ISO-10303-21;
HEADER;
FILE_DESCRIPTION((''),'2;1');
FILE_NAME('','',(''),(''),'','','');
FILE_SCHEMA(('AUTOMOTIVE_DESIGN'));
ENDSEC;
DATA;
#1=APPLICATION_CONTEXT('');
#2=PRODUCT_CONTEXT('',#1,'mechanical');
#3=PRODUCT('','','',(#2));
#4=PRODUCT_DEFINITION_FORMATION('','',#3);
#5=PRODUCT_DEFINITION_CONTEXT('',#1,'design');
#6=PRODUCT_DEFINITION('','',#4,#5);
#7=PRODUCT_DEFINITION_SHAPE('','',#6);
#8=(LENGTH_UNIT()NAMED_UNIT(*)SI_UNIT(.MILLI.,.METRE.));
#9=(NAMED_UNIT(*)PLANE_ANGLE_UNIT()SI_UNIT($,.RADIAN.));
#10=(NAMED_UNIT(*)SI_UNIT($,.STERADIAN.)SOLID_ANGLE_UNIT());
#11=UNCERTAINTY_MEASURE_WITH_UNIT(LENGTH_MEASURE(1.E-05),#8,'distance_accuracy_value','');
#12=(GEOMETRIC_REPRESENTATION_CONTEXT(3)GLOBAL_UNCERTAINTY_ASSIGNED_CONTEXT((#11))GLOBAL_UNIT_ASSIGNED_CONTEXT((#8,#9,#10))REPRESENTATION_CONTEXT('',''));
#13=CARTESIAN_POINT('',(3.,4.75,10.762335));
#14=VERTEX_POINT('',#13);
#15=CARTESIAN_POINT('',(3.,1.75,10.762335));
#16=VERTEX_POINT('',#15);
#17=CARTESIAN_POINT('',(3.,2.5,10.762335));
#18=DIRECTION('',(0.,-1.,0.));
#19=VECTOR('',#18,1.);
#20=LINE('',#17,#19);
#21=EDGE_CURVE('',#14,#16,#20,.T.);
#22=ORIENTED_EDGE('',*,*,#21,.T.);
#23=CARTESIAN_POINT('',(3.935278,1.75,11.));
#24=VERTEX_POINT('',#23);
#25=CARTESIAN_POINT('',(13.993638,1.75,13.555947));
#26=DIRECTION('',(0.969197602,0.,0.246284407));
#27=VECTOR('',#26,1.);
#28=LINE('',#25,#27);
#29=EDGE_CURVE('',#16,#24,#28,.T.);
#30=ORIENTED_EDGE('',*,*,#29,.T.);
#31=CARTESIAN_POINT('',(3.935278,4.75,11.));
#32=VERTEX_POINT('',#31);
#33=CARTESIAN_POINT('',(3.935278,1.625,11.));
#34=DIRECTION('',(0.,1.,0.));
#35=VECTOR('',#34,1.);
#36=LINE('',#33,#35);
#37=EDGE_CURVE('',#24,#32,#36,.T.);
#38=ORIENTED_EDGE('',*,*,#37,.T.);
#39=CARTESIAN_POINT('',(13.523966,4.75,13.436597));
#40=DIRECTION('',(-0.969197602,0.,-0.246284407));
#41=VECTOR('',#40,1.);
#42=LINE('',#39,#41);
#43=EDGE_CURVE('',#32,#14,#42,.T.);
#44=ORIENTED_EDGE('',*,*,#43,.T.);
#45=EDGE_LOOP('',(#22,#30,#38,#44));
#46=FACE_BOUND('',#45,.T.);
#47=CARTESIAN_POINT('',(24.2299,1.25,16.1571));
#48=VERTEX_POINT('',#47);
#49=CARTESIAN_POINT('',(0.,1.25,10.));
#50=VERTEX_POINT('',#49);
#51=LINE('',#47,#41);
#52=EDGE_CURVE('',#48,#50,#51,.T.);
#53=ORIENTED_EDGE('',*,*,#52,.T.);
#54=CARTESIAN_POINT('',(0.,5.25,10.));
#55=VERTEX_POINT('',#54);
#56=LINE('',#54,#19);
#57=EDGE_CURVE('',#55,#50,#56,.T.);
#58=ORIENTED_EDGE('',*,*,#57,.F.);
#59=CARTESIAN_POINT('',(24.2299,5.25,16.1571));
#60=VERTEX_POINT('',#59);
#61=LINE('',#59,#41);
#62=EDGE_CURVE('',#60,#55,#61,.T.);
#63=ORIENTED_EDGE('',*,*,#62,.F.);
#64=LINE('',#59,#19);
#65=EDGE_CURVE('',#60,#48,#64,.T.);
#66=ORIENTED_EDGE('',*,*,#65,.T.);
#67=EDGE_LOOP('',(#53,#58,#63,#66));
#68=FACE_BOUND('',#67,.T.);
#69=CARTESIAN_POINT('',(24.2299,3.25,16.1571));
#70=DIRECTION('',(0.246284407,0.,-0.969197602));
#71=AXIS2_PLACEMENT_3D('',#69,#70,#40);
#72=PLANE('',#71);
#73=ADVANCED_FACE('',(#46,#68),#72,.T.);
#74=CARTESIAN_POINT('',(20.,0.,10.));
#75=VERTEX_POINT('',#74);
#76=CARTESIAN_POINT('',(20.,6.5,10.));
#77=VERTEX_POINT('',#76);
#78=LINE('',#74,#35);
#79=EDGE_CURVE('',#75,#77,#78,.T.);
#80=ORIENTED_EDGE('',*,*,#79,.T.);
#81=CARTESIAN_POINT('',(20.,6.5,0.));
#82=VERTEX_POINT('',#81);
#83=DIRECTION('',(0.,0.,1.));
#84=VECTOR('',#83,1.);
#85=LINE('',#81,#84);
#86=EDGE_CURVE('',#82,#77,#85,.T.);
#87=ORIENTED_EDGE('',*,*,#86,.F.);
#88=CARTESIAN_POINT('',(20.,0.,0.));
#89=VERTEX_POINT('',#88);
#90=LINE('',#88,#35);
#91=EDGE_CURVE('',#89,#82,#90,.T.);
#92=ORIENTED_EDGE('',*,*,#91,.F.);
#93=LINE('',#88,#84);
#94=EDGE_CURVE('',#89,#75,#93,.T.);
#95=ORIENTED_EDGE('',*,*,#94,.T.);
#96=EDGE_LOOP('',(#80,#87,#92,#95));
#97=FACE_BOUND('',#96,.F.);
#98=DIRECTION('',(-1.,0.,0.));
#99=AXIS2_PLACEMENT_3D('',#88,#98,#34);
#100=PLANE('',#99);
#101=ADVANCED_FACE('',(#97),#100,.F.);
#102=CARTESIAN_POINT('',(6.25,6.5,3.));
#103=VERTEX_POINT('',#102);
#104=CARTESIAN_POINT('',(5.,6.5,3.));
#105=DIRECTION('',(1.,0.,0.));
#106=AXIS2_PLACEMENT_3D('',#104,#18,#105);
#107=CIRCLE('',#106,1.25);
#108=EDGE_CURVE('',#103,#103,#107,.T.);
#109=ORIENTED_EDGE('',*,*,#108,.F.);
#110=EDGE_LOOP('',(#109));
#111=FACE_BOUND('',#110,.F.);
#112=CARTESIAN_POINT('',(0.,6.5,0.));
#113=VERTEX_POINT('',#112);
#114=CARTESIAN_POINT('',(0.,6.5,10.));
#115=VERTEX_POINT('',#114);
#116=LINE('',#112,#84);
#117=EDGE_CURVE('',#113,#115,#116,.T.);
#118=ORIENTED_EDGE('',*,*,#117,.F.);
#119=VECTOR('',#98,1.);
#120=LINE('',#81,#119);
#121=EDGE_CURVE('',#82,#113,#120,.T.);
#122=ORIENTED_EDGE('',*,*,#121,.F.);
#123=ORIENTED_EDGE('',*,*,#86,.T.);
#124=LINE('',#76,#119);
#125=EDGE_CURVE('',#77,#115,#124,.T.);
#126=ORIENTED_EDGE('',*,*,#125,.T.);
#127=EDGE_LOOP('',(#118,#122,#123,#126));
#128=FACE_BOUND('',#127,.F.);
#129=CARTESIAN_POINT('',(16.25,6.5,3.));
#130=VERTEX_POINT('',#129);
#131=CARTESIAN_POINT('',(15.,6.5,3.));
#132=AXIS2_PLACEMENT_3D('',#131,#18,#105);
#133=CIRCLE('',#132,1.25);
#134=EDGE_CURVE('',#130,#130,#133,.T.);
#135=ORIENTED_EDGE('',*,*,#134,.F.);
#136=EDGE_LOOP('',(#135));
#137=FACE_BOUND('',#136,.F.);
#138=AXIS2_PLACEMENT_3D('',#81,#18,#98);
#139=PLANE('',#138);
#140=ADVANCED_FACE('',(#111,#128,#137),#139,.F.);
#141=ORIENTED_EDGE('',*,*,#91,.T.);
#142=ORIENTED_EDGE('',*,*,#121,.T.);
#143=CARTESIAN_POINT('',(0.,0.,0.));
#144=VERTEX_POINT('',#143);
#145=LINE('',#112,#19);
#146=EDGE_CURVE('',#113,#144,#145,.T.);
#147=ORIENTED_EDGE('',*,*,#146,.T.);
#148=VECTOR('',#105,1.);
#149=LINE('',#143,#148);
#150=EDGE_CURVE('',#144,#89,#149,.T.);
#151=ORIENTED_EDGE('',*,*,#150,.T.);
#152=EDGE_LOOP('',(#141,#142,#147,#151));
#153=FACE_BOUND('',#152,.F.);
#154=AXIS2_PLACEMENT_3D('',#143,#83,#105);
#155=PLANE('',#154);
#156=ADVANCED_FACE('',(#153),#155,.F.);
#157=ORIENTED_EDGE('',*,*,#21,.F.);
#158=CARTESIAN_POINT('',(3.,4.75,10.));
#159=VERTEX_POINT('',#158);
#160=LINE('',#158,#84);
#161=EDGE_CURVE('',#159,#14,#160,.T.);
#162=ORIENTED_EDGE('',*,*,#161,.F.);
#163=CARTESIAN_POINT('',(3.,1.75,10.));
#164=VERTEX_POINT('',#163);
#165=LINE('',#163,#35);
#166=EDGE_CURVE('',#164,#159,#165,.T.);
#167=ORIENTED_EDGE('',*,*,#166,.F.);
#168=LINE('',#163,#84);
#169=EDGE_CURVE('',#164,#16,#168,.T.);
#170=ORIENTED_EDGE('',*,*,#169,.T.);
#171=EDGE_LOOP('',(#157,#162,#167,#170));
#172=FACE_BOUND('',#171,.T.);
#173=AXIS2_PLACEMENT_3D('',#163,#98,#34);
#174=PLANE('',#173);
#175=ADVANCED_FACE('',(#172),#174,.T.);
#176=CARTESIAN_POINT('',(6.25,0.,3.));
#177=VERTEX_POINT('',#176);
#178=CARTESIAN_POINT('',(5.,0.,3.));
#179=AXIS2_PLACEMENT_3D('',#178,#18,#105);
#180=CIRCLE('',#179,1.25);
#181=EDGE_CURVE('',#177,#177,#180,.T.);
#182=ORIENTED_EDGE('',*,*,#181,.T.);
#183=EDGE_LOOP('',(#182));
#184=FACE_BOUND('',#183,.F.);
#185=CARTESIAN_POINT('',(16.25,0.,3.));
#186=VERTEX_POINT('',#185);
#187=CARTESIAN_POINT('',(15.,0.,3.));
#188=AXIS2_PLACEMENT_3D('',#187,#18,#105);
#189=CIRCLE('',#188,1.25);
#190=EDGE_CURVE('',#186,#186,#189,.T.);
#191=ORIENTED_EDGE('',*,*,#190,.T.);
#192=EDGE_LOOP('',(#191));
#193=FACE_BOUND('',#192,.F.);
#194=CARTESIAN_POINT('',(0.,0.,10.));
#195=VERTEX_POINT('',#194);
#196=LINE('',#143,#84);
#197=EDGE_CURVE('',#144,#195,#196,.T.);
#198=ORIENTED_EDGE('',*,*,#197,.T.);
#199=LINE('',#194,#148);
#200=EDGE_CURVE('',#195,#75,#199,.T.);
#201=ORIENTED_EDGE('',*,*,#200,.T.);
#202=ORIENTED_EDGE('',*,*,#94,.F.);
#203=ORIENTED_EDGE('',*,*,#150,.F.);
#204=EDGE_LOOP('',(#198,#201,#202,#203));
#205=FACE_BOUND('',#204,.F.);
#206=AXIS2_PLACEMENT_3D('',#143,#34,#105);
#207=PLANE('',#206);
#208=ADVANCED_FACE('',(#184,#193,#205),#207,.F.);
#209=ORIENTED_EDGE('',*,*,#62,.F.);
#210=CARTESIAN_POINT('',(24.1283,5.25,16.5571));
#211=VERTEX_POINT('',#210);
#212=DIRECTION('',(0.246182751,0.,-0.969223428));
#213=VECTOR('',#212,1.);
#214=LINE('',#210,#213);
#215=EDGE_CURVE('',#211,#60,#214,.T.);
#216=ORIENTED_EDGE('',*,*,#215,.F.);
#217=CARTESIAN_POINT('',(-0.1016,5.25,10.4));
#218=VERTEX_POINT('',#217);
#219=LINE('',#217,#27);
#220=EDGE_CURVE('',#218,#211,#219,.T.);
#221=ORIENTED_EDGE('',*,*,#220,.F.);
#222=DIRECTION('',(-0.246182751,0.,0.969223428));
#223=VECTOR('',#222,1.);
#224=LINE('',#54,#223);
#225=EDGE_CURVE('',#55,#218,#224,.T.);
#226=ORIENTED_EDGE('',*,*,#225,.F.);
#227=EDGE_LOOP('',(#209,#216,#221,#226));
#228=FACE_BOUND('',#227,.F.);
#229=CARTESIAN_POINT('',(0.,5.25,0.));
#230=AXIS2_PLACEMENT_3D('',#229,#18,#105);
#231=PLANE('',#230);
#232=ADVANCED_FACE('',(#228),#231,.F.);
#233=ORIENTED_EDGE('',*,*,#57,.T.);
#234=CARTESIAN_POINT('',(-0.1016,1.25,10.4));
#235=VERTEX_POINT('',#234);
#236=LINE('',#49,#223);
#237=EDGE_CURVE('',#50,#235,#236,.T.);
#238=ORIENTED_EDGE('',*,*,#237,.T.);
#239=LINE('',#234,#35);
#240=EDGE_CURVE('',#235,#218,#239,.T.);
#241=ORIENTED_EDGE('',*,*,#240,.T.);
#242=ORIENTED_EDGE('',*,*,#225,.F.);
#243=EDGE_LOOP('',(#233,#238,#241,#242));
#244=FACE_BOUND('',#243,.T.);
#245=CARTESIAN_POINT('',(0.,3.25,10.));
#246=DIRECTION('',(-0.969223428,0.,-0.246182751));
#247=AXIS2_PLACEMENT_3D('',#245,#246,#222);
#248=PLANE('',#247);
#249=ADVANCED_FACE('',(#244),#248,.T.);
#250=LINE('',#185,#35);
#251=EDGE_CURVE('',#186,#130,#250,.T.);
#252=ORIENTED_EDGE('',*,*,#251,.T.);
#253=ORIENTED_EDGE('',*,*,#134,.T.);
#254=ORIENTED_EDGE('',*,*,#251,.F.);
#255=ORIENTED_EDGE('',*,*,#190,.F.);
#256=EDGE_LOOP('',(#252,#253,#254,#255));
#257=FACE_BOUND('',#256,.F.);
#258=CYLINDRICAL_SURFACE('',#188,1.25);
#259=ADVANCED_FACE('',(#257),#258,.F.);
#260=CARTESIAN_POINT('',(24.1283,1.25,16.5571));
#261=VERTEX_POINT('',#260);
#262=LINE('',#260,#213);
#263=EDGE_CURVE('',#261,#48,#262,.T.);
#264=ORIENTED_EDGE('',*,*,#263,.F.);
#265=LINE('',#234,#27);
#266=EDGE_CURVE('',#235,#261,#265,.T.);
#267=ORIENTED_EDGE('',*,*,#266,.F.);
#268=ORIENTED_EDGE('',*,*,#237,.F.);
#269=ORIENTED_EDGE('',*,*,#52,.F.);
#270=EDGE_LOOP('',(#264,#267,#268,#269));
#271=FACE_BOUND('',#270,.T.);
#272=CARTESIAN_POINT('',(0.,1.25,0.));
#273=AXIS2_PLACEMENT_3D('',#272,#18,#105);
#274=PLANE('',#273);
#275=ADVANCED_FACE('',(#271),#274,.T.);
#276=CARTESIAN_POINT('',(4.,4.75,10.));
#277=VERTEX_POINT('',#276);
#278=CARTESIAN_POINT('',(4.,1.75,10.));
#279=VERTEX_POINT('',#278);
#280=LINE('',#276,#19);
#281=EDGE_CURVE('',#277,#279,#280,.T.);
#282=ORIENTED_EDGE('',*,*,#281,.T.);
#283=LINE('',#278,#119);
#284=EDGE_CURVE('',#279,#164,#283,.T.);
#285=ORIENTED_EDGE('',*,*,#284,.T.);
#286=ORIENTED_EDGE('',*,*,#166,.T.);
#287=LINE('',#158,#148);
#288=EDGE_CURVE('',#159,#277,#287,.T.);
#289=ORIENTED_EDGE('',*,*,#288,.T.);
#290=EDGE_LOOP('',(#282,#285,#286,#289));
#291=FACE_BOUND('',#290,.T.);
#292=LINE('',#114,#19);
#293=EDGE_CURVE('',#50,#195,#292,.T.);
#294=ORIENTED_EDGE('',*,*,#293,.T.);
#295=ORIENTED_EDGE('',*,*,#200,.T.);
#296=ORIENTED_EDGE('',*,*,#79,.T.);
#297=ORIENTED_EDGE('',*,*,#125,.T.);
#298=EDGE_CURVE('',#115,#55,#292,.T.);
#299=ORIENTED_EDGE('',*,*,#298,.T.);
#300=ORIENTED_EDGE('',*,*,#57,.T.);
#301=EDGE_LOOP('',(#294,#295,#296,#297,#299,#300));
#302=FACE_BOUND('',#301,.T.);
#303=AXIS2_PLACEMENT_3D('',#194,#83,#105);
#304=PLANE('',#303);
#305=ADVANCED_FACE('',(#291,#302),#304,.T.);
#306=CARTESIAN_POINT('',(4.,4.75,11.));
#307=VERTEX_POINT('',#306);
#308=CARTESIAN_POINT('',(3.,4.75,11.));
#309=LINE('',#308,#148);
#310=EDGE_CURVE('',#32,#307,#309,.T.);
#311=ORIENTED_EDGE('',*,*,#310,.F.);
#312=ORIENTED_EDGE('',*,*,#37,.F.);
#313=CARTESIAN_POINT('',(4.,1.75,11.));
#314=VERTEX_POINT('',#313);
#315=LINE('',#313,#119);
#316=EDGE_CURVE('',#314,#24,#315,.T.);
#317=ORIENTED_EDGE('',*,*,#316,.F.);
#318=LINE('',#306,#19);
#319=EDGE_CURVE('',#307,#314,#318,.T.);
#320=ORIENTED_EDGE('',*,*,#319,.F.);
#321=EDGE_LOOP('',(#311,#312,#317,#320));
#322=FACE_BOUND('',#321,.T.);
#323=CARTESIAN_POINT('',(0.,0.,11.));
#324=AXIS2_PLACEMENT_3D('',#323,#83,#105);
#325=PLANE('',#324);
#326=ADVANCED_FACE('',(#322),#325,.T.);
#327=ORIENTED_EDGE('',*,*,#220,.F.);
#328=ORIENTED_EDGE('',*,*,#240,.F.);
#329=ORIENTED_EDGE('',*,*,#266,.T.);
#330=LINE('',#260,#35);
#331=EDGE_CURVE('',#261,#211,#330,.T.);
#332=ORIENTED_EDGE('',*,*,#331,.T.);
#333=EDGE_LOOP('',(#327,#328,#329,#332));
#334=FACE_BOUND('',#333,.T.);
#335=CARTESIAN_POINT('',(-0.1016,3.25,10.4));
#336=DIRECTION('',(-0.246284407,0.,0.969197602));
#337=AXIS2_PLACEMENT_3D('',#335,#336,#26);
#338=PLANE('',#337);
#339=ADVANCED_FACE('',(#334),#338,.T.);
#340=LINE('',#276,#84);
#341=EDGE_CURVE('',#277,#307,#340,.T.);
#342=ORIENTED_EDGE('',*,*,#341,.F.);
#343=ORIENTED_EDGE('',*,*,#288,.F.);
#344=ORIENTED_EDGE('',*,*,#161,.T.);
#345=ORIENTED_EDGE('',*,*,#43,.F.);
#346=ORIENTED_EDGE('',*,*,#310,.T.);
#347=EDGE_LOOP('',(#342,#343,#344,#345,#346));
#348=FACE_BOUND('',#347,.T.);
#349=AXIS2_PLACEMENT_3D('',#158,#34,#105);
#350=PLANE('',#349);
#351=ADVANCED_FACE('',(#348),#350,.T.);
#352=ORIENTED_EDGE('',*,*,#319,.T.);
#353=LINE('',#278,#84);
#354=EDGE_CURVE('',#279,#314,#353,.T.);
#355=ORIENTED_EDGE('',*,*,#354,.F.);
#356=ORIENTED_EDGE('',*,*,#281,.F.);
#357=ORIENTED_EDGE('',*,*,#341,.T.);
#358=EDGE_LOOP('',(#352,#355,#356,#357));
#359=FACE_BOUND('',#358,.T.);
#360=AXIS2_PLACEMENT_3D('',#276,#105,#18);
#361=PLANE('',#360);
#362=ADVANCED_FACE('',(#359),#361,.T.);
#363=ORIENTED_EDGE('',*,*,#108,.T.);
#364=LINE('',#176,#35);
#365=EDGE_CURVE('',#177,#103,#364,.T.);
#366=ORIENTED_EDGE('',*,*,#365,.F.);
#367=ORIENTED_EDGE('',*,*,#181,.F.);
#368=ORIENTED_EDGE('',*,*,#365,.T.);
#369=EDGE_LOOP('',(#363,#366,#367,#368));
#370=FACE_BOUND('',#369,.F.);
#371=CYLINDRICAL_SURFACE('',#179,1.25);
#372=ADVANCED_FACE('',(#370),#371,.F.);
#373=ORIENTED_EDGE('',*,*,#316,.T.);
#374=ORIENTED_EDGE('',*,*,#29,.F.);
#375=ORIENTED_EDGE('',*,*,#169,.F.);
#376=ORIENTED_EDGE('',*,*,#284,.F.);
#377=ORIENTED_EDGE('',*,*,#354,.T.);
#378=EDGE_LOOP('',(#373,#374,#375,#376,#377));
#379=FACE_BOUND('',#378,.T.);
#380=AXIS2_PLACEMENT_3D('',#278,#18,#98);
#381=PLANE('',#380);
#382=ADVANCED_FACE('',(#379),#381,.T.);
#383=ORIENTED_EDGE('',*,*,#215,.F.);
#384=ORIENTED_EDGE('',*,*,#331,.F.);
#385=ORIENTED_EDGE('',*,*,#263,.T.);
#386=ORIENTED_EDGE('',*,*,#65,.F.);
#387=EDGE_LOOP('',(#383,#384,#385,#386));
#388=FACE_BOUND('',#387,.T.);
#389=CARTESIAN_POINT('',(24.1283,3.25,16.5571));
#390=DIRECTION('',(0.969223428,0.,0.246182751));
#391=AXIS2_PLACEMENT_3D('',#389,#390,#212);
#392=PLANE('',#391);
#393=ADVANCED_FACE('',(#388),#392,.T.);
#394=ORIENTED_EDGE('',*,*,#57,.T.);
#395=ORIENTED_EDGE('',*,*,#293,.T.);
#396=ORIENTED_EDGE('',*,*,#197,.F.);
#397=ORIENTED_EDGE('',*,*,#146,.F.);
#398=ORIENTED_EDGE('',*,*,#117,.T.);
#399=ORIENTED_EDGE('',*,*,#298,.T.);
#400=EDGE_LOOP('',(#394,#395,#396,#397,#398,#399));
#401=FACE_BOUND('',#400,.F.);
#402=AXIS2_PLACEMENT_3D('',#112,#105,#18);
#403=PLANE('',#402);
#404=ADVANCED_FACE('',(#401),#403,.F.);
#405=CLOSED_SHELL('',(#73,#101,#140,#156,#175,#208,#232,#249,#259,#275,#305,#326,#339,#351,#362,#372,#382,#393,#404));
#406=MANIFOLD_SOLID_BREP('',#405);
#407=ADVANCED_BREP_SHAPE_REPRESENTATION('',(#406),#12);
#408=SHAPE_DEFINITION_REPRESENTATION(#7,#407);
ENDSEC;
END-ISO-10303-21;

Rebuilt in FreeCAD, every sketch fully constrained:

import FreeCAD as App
import Part
import Sketcher
from FreeCAD import Vector

doc = App.newDocument("Part")
body = doc.addObject("PartDesign::Body", "Body")

sketch1 = body.newObject("Sketcher::SketchObject", "Sketch")
sketch1.AttachmentSupport = (doc.getObject("XY_Plane"), [""])
sketch1.MapMode = "FlatFace"
sketch1.addGeometry([
    Part.LineSegment(Vector(0, 6, 0), Vector(0, 0, 0)),
    Part.LineSegment(Vector(0, 0, 0), Vector(20, 0, 0)),
    Part.LineSegment(Vector(20, 0, 0), Vector(20, 6, 0)),
    Part.LineSegment(Vector(20, 6, 0), Vector(0, 6, 0)),
], False)
sketch1.addConstraint([
    Sketcher.Constraint("Coincident", 0, 2, 1, 1),
    Sketcher.Constraint("Coincident", 1, 2, 2, 1),
    Sketcher.Constraint("Coincident", 2, 2, 3, 1),
    Sketcher.Constraint("Coincident", 3, 2, 0, 1),
    Sketcher.Constraint("Vertical", 0),
    Sketcher.Constraint("Horizontal", 1),
    Sketcher.Constraint("Vertical", 2),
    Sketcher.Constraint("Horizontal", 3),
    Sketcher.Constraint("Coincident", 0, 2, -1, 1),
    Sketcher.Constraint("DistanceX", 1, 1, 1, 2, 20.0),
    Sketcher.Constraint("DistanceY", 0, 2, 0, 1, 6.5),
])
pad1 = body.newObject("PartDesign::Pad", "Pad")
pad1.Profile = sketch1
pad1.Length = 10

sketch2 = body.newObject("Sketcher::SketchObject", "Sketch001")
sketch2.AttachmentSupport = (doc.getObject("XY_Plane"), [""])
sketch2.MapMode = "FlatFace"
sketch2.AttachmentOffset = App.Placement(Vector(0, 0, 10), App.Rotation())
sketch2.addGeometry([
    Part.LineSegment(Vector(4, 4.8, 0), Vector(3, 4.8, 0)),
    Part.LineSegment(Vector(3, 4.8, 0), Vector(3, 1.8, 0)),
    Part.LineSegment(Vector(3, 1.8, 0), Vector(4, 1.8, 0)),
    Part.LineSegment(Vector(4, 1.8, 0), Vector(4, 4.8, 0)),
], False)
sketch2.addConstraint([
    Sketcher.Constraint("Coincident", 0, 2, 1, 1),
    Sketcher.Constraint("Coincident", 1, 2, 2, 1),
    Sketcher.Constraint("Coincident", 2, 2, 3, 1),
    Sketcher.Constraint("Coincident", 3, 2, 0, 1),
    Sketcher.Constraint("Horizontal", 0),
    Sketcher.Constraint("Vertical", 1),
    Sketcher.Constraint("Horizontal", 2),
    Sketcher.Constraint("Vertical", 3),
    Sketcher.Constraint("DistanceX", 0, 2, 0, 1, 1.0),
    Sketcher.Constraint("DistanceY", 1, 2, 1, 1, 3.0),
    Sketcher.Constraint("DistanceX", -1, 1, 0, 2, 3.0),
    Sketcher.Constraint("DistanceY", -1, 1, 0, 2, 4.75),
])
pad2 = body.newObject("PartDesign::Pad", "Pad001")
pad2.Profile = sketch2
pad2.Length = 1

sketch3 = body.newObject("Sketcher::SketchObject", "Sketch002")
sketch3.AttachmentSupport = (doc.getObject("XZ_Plane"), [""])
sketch3.MapMode = "FlatFace"
sketch3.addGeometry([
    Part.Circle(Vector(5, 3, 0), Vector(0, 0, 1), 1.2),
    Part.Circle(Vector(15, 3, 0), Vector(0, 0, 1), 1.2),
], False)
sketch3.addConstraint([
    Sketcher.Constraint("Equal", 0, 1),
    Sketcher.Constraint("Horizontal", 0, 3, 1, 3),
    Sketcher.Constraint("Diameter", 0, 2.5),
    Sketcher.Constraint("DistanceY", -1, 1, 0, 3, 3.0),
    Sketcher.Constraint("DistanceX", 0, 3, 1, 3, 10.0),
    Sketcher.Constraint("DistanceX", -1, 1, 0, 3, 5.0),
])
pocket1 = body.newObject("PartDesign::Pocket", "Pocket")
pocket1.Profile = sketch3
pocket1.Type = "ThroughAll"

sketch4 = body.newObject("Sketcher::SketchObject", "Sketch003")
sketch4.AttachmentSupport = (doc.getObject("XZ_Plane"), [""])
sketch4.MapMode = "FlatFace"
sketch4.AttachmentOffset = App.Placement(Vector(0, 0, -3.25), App.Rotation())
sketch4.addGeometry([
    Part.LineSegment(Vector(-0.1, 10.4, 0), Vector(0, 10, 0)),
    Part.LineSegment(Vector(0, 10, 0), Vector(24.23, 16.16, 0)),
    Part.LineSegment(Vector(24.23, 16.16, 0), Vector(24.13, 16.56, 0)),
    Part.LineSegment(Vector(24.13, 16.56, 0), Vector(-0.1, 10.4, 0)),
], False)
sketch4.addConstraint([
    Sketcher.Constraint("Coincident", 0, 2, 1, 1),
    Sketcher.Constraint("Coincident", 1, 2, 2, 1),
    Sketcher.Constraint("Coincident", 2, 2, 3, 1),
    Sketcher.Constraint("Coincident", 3, 2, 0, 1),
    Sketcher.Constraint("PointOnObject", 0, 2, -2),
    Sketcher.Constraint("Perpendicular", 0, 1),
    Sketcher.Constraint("Perpendicular", 1, 2),
    Sketcher.Constraint("Perpendicular", 2, 3),
    Sketcher.Constraint("Distance", 1, 25.0),
    Sketcher.Constraint("DistanceY", 1, 2, 2, 2, 0.4),
    Sketcher.Constraint("DistanceY", -1, 1, 0, 2, 10.0),
    Sketcher.Constraint("DistanceX", -1, 1, 1, 2, 24.23),
])
pad3 = body.newObject("PartDesign::Pad", "Pad002")
pad3.Profile = sketch4
pad3.Length = 4
pad3.Midplane = True

doc.recompute()
